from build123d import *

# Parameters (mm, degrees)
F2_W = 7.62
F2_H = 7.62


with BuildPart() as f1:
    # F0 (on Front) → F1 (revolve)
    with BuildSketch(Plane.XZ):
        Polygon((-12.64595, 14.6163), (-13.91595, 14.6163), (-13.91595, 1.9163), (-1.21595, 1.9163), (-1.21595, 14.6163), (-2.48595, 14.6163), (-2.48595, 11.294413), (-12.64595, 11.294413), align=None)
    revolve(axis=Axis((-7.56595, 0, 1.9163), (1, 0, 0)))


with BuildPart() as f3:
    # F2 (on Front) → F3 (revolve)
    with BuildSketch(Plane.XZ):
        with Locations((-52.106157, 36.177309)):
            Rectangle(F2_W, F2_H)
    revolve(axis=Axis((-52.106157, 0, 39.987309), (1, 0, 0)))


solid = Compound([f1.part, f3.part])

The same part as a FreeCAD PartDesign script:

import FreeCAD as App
import Part
import Sketcher

V = App.Vector
Q = App.Units.Quantity


def add_polygon(sketch, points):
    """Adds a closed chain of lines whose ends are joined by coincident constraints."""
    first, n = sketch.GeometryCount, len(points)
    for a, b in zip(points, points[1:] + points[:1]):
        sketch.addGeometry(Part.LineSegment(App.Vector(*a, 0), App.Vector(*b, 0)), False)
    for i in range(n):
        sketch.addConstraint(Sketcher.Constraint("Coincident", first + i, 2, first + (i + 1) % n, 1))

doc = App.newDocument("Part")
body = doc.addObject("PartDesign::Body", "Body")

sketch1 = body.newObject("Sketcher::SketchObject", "Sketch")
sketch1.AttachmentSupport = (doc.getObject("XZ_Plane"), [""])
sketch1.MapMode = "FlatFace"
add_polygon(sketch1, [(-12.64595, 14.6163), (-13.91595, 14.6163), (-13.91595, 1.9163), (-1.21595, 1.9163), (-1.21595, 14.6163), (-2.48595, 14.6163), (-2.48595, 11.294413), (-12.64595, 11.294413)])
sketch1.addGeometry(Part.LineSegment(V(-13.91595, 1.9163, 0), V(-1.21595, 1.9163, 0)), True)
sketch1.addConstraint(Sketcher.Constraint("Horizontal", 0))
sketch1.addConstraint(Sketcher.Constraint("Vertical", 1))
sketch1.addConstraint(Sketcher.Constraint("Horizontal", 2))
sketch1.addConstraint(Sketcher.Constraint("Vertical", 3))
sketch1.addConstraint(Sketcher.Constraint("Horizontal", 4))
sketch1.addConstraint(Sketcher.Constraint("Vertical", 5))
sketch1.addConstraint(Sketcher.Constraint("Horizontal", 6))
sketch1.addConstraint(Sketcher.Constraint("Vertical", 7))
sketch1.addConstraint(Sketcher.Constraint("Horizontal", 8))
sketch1.addConstraint(Sketcher.Constraint("Coincident", 8, 1, 1, 2))
sketch1.addConstraint(Sketcher.Constraint("Horizontal", 0, 2, 3, 2))
sketch1.addConstraint(Sketcher.Constraint("Vertical", 3, 2, 8, 2))
sketch1.addConstraint(Sketcher.Constraint("Equal", 0, 4))
sketch1.addConstraint(Sketcher.Constraint("Equal", 8, 1))
sketch1.addConstraint(Sketcher.Constraint("DistanceX", 2, 1, 2, 2, Q("0.5 in")))
sketch1.addConstraint(Sketcher.Constraint("DistanceX", 6, 2, 6, 1, Q("0.4 in")))
sketch1.addConstraint(Sketcher.Constraint("DistanceY", -1, 1, 0, 2, Q("14.6163 mm")))
sketch1.addConstraint(Sketcher.Constraint("DistanceY", 5, 2, 5, 1, Q("3.321887 mm")))
sketch1.addConstraint(Sketcher.Constraint("DistanceX", 0, 2, -1, 1, Q("13.91595 mm")))
revolution = body.newObject("PartDesign::Revolution", "Revolution")
revolution.Profile = sketch1
revolution.ReferenceAxis = (sketch1, ["Axis0"])
revolution.Angle = 360
body2 = doc.addObject("PartDesign::Body", "Body001")

sketch2 = body2.newObject("Sketcher::SketchObject", "Sketch001")
sketch2.AttachmentSupport = (doc.getObject("XZ_Plane001"), [""])
sketch2.MapMode = "FlatFace"
add_polygon(sketch2, [(-55.916157, 39.987309), (-55.916157, 32.367309), (-48.296157, 32.367309), (-48.296157, 39.987309)])
sketch2.addGeometry(Part.LineSegment(V(-55.916157, 39.987309, 0), V(-48.296157, 39.987309, 0)), True)
sketch2.addConstraint(Sketcher.Constraint("Vertical", 0))
sketch2.addConstraint(Sketcher.Constraint("Horizontal", 1))
sketch2.addConstraint(Sketcher.Constraint("Vertical", 2))
sketch2.addConstraint(Sketcher.Constraint("Horizontal", 3))
sketch2.addConstraint(Sketcher.Constraint("Horizontal", 4))
sketch2.addConstraint(Sketcher.Constraint("Coincident", 4, 1, 3, 2))
sketch2.addConstraint(Sketcher.Constraint("Vertical", 1, 2, 4, 2))
sketch2.addConstraint(Sketcher.Constraint("Equal", 4, 0))
sketch2.addConstraint(Sketcher.Constraint("DistanceX", 1, 1, 1, 2, Q("0.3 in")))
sketch2.addConstraint(Sketcher.Constraint("DistanceY", -1, 1, 0, 2, Q("32.367309 mm")))
sketch2.addConstraint(Sketcher.Constraint("DistanceX", 0, 2, -1, 1, Q("55.916157 mm")))
revolution2 = body2.newObject("PartDesign::Revolution", "Revolution001")
revolution2.Profile = sketch2
revolution2.ReferenceAxis = (sketch2, ["Axis0"])
revolution2.Angle = 360

doc.recompute()
